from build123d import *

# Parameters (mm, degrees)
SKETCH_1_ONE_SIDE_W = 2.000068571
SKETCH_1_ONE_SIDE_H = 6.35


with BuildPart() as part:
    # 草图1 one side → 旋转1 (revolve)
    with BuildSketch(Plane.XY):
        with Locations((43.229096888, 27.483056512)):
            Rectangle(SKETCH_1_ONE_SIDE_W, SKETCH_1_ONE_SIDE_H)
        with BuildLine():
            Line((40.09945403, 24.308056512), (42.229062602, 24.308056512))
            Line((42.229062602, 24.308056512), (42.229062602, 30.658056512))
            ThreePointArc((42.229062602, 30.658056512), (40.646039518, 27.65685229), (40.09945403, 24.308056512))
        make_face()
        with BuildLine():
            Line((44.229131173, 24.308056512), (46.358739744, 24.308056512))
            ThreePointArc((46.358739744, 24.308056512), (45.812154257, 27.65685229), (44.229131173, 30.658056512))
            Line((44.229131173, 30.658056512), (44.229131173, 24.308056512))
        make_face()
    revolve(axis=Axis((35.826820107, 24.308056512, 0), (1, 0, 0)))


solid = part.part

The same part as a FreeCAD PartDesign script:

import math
import FreeCAD as App
import Part
import Sketcher

V = App.Vector
Q = App.Units.Quantity

doc = App.newDocument("Part")
params = doc.addObject("Spreadsheet::Sheet", "Params")
for row, (alias, value) in enumerate([
    ("revolution_angle", "360 deg"),
], start=1):
    params.set(f"A{row}", alias)
    params.set(f"B{row}", "=" + value)
    params.setAlias(f"B{row}", alias)

body = doc.addObject("PartDesign::Body", "Body")

sketch1 = doc.addObject("Sketcher::SketchObject", "Sketch")
body.addObject(sketch1)
sketch1.AttachmentSupport = (doc.XY_Plane, [""])
sketch1.MapMode = "FlatFace"
sketch1.addGeometry(Part.LineSegment(V(44.2, 30.7, 0), V(42.2, 30.7, 0)), False)
sketch1.addGeometry(Part.ArcOfCircle(Part.Circle(V(50.6, 24.3, 0), V(0, 0, 1), 10.5), math.radians(143), math.radians(180)), False)
sketch1.addGeometry(Part.LineSegment(V(40.1, 24.3, 0), V(46.4, 24.3, 0)), False)
sketch1.addGeometry(Part.ArcOfCircle(Part.Circle(V(35.8, 24.3, 0), V(0, 0, 1), 10.5), math.radians(0), math.radians(37)), False)
sketch1.addGeometry(Part.LineSegment(V(35.8, 24.3, 0), V(50.6, 24.3, 0)), True)
sketch1.addConstraint(Sketcher.Constraint("Coincident", 0, 2, 1, 1))
sketch1.addConstraint(Sketcher.Constraint("Coincident", 1, 2, 2, 1))
sketch1.addConstraint(Sketcher.Constraint("Coincident", 2, 2, 3, 1))
sketch1.addConstraint(Sketcher.Constraint("Coincident", 3, 2, 0, 1))
sketch1.addConstraint(Sketcher.Constraint("Horizontal", 0))
sketch1.addConstraint(Sketcher.Constraint("Horizontal", 2))
sketch1.addConstraint(Sketcher.Constraint("Horizontal", 4))
sketch1.addConstraint(Sketcher.Constraint("Coincident", 4, 1, 3, 3))
sketch1.addConstraint(Sketcher.Constraint("Coincident", 4, 2, 1, 3))
sketch1.addConstraint(Sketcher.Constraint("Equal", 1, 3))
sketch1.addConstraint(Sketcher.Constraint("Horizontal", 3, 3, 1, 2))
sketch1.addConstraint(Sketcher.Constraint("Radius", 1, Q("10.53192 mm")))
sketch1.addConstraint(Sketcher.Constraint("DistanceY", 3, 3, 0, 2, Q("6.35 mm")))
sketch1.addConstraint(Sketcher.Constraint("DistanceX", 0, 2, 0, 1, Q("2.000069 mm")))
sketch1.addConstraint(Sketcher.Constraint("DistanceX", -1, 1, 3, 3, Q("35.82682 mm")))
sketch1.addConstraint(Sketcher.Constraint("DistanceY", -1, 1, 1, 3, Q("24.308057 mm")))
revolution = doc.addObject("PartDesign::Revolution", "Revolution")
body.addObject(revolution)
revolution.Profile = sketch1
revolution.ReferenceAxis = (sketch1, ["Axis0"])
revolution.setExpression("Angle", "Params.revolution_angle")

doc.recompute()
